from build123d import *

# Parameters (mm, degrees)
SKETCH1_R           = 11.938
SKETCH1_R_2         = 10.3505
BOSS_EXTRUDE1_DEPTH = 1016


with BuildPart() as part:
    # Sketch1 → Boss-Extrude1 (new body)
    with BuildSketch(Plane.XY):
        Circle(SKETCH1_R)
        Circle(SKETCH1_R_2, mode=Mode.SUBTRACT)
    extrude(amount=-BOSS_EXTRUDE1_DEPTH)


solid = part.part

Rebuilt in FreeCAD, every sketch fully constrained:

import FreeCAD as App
import Part
import Sketcher
Q = App.Units.Quantity

doc = App.newDocument("Part")
params = doc.addObject("Spreadsheet::Sheet", "Params")
for row, (alias, value) in enumerate([
    ("sketch1_diameter", "0.94 in"),
    ("sketch1_diameter2", "0.815 in"),
    ("pad1_length", "40 in"),
], start=1):
    params.set(f"A{row}", alias)
    params.set(f"B{row}", "=" + value)
    params.setAlias(f"B{row}", alias)

body = doc.addObject("PartDesign::Body", "Body")

# Sketch on XY plane
sketch1 = body.newObject("Sketcher::SketchObject", "Sketch")
sketch1.AttachmentSupport = (doc.getObject("XY_Plane"), [""])
sketch1.MapMode = "FlatFace"
sketch1.addGeometry(Part.Circle(App.Vector(0, 0, 0), App.Vector(0, 0, 1), 12), False)
sketch1.addGeometry(Part.Circle(App.Vector(0, 0, 0), App.Vector(0, 0, 1), 10), False)
sketch1.addConstraint(Sketcher.Constraint("Coincident", 0, 3, -1, 1))
sketch1.addConstraint(Sketcher.Constraint("Coincident", 1, 3, -1, 1))
sketch1.addConstraint(Sketcher.Constraint("Diameter", 0, Q("0.94 in")))
sketch1.addConstraint(Sketcher.Constraint("Diameter", 1, Q("0.815 in")))
sketch1.setExpression("Constraints[2]", "Params.sketch1_diameter")
sketch1.setExpression("Constraints[3]", "Params.sketch1_diameter2")
pad1 = body.newObject("PartDesign::Pad", "Pad")
pad1.Profile = sketch1
pad1.setExpression("Length", "Params.pad1_length")
pad1.Reversed = True

doc.recompute()
